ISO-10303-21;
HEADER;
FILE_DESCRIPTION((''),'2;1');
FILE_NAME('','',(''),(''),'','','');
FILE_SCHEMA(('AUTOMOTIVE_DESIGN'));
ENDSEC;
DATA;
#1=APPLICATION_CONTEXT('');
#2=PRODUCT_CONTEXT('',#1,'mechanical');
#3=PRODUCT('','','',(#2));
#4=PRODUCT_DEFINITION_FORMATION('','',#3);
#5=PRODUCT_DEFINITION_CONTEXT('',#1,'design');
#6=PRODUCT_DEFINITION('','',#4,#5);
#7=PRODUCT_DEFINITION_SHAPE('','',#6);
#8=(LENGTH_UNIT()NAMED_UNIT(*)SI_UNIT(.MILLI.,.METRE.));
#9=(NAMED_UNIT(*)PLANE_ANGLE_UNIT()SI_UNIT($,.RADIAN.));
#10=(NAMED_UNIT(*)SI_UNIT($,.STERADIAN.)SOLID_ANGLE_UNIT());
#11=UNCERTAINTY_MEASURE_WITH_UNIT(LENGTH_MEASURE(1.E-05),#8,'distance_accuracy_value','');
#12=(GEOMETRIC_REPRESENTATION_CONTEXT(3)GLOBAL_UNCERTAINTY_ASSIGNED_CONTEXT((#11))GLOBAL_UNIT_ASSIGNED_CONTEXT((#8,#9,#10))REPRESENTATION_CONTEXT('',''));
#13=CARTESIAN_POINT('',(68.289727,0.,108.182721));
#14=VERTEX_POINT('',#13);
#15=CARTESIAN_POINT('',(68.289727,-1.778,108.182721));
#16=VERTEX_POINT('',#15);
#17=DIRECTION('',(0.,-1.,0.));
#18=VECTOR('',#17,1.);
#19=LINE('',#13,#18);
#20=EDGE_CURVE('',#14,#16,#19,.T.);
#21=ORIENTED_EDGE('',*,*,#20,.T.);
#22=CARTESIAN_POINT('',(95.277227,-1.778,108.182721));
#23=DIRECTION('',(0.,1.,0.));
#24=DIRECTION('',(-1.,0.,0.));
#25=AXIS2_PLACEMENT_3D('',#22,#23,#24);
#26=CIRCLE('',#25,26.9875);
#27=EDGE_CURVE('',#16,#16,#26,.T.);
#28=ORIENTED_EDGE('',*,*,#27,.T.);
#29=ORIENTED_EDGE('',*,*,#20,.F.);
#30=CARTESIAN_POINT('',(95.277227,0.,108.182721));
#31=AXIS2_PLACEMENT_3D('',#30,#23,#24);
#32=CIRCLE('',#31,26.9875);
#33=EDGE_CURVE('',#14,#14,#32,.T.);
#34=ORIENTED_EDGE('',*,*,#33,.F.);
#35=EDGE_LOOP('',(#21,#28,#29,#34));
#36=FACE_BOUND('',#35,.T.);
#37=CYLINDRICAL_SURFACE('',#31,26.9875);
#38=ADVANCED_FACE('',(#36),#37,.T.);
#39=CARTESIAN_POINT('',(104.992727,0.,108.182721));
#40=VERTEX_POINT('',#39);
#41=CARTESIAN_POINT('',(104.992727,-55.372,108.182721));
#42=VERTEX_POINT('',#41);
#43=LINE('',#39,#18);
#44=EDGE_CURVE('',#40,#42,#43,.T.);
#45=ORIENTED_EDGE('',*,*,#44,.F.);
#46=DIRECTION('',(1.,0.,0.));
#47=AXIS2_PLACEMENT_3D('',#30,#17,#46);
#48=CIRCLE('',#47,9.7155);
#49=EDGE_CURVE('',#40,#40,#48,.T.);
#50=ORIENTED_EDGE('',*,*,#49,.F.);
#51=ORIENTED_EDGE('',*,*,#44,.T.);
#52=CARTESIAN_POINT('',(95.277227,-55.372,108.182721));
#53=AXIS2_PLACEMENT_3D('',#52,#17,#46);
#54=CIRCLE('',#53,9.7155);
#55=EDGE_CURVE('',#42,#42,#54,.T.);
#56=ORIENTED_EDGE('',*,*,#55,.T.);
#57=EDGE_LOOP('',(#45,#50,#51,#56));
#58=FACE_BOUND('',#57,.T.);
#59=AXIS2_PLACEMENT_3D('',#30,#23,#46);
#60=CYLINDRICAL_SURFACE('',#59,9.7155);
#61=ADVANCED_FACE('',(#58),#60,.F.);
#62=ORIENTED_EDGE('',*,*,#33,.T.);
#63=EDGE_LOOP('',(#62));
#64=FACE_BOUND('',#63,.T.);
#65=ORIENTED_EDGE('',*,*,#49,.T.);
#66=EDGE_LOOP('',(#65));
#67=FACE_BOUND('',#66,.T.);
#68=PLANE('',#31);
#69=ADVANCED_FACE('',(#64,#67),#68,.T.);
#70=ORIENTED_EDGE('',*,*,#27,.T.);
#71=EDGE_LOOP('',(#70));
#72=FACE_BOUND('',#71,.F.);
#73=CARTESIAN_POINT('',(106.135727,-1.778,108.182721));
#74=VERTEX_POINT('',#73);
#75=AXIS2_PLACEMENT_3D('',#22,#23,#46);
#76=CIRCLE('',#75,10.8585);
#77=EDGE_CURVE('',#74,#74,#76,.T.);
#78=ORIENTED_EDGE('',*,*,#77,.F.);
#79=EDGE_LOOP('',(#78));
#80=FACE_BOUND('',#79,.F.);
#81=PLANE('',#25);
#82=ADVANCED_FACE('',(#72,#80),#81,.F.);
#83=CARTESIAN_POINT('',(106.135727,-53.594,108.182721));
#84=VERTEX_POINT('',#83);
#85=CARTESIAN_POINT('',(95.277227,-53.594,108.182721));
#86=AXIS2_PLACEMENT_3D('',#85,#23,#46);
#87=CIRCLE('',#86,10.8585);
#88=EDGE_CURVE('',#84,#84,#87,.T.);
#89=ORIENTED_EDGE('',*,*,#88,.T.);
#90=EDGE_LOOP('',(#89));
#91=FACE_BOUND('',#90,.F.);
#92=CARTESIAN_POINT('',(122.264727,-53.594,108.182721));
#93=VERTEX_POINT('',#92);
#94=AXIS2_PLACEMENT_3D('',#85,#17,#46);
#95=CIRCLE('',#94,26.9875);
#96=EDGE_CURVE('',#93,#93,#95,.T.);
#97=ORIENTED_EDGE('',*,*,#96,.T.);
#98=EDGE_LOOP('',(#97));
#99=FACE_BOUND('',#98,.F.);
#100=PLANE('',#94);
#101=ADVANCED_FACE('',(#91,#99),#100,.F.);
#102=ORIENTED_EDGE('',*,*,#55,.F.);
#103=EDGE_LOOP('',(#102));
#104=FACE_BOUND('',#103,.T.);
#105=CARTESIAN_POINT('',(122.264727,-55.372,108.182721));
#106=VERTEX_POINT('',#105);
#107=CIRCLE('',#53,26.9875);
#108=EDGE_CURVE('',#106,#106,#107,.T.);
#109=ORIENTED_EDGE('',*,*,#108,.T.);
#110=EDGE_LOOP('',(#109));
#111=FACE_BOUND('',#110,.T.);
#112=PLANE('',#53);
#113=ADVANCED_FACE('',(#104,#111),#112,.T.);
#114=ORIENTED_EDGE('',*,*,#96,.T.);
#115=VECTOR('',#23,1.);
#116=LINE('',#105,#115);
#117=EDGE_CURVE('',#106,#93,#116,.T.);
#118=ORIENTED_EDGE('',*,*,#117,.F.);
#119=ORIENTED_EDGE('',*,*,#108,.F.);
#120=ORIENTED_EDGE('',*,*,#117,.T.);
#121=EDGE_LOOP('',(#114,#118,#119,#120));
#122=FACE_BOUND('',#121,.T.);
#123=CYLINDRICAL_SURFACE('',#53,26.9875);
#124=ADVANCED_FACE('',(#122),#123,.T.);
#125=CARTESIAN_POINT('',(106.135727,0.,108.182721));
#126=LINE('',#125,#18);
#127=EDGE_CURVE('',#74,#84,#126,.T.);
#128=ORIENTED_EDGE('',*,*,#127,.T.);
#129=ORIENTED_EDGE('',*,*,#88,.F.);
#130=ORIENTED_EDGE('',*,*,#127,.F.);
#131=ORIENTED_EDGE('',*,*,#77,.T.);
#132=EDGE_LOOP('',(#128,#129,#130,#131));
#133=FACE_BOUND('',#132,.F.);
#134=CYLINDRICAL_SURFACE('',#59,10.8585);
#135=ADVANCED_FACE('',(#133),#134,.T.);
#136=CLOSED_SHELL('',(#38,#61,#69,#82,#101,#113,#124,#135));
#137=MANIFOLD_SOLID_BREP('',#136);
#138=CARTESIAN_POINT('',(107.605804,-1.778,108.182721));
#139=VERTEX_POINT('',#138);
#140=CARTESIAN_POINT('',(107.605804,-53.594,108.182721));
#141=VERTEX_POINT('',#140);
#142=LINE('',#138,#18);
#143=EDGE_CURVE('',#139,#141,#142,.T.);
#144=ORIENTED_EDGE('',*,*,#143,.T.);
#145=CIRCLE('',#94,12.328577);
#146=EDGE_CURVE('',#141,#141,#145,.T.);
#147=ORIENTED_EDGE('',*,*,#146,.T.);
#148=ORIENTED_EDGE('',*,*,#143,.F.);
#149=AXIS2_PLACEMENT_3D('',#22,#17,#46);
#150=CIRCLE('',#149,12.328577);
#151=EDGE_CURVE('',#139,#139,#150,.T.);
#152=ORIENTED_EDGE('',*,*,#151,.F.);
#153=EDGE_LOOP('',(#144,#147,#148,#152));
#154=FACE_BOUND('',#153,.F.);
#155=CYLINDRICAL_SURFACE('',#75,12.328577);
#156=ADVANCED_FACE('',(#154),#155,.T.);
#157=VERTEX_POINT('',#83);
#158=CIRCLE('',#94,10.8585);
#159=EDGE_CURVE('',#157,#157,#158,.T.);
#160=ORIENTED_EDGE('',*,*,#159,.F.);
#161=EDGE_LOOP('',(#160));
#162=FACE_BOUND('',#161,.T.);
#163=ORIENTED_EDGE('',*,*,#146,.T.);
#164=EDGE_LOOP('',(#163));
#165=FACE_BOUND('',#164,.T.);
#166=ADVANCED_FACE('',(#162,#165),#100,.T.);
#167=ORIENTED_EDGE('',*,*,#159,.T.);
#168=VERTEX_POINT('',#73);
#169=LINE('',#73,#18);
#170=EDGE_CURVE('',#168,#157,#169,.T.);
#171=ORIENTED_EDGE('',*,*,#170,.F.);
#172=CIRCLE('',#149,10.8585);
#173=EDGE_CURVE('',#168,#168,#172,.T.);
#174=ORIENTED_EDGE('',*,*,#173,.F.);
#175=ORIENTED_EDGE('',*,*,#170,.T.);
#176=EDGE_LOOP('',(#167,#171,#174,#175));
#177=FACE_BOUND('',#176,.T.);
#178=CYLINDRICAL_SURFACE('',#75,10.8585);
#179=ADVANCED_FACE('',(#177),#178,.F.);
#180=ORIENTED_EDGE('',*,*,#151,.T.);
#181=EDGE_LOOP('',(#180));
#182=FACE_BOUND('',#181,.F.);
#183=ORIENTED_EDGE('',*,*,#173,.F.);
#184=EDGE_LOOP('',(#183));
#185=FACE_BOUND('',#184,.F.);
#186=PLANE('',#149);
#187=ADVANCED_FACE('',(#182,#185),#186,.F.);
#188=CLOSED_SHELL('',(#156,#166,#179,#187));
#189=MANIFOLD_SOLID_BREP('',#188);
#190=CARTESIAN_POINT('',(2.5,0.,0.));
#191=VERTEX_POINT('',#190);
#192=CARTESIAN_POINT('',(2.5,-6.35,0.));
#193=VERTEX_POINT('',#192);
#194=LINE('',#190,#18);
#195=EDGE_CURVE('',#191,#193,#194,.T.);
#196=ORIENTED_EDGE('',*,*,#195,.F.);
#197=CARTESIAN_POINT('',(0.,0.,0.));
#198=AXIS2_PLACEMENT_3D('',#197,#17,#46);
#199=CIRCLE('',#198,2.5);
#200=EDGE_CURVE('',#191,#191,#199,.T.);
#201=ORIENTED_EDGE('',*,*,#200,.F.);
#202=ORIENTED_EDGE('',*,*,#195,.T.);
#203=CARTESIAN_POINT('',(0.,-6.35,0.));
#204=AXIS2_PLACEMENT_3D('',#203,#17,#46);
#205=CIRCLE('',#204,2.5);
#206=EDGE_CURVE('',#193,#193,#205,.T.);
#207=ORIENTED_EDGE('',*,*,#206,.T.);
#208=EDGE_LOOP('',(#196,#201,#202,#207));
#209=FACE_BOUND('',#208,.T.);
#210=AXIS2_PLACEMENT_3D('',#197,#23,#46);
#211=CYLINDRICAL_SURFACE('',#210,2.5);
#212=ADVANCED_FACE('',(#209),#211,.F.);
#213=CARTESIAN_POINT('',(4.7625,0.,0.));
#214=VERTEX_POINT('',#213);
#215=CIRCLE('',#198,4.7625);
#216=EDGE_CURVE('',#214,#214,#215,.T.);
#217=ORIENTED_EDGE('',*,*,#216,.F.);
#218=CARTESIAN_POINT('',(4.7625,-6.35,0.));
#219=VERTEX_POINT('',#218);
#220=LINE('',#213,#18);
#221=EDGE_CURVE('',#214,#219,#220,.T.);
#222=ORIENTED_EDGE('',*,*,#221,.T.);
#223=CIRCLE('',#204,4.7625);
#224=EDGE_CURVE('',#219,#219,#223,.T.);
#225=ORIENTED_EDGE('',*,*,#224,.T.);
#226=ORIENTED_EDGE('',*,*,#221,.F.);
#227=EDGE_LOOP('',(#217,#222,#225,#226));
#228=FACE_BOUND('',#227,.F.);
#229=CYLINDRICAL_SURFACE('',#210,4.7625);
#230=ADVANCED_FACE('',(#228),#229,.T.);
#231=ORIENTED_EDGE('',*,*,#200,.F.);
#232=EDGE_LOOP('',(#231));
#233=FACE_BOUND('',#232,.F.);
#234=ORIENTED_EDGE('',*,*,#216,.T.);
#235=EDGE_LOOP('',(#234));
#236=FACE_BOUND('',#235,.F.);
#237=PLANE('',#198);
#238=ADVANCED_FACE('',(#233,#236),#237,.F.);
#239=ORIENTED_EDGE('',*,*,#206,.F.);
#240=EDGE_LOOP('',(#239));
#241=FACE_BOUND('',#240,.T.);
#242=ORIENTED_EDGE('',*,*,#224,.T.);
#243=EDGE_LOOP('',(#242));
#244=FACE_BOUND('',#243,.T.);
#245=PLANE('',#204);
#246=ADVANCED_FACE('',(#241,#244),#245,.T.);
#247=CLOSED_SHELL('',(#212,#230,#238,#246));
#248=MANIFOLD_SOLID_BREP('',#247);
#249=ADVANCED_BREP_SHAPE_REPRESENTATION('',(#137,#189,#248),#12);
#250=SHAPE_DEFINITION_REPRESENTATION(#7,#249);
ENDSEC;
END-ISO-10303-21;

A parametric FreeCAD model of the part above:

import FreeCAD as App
import Part
import Sketcher

V = App.Vector
Q = App.Units.Quantity

doc = App.newDocument("Part")
params = doc.addObject("Spreadsheet::Sheet", "Params")
for row, (alias, value) in enumerate([
    ("sketch1_diameter", "0.375 in"),
    ("pad1_length", "0.25 in"),
    ("sketch2_diameter", "0.855 in"),
    ("sketch2_diameter2", "0.765 in"),
    ("pad2_length", "2.18 in"),
    ("sketch3_diameter", "2.125 in"),
    ("sketch3_diameter2", "0.765 in"),
    ("pad3_length", "0.07 in"),
    ("sketch4_diameter", "2.125 in"),
    ("sketch4_diameter2", "0.765 in"),
    ("pad4_length", "0.07 in"),
    ("sketch5_diameter", "0.855 in"),
    ("pad5_length", "2.04 in"),
], start=1):
    params.set(f"A{row}", alias)
    params.set(f"B{row}", "=" + value)
    params.setAlias(f"B{row}", alias)

body = doc.addObject("PartDesign::Body", "Body")

# Sketch on XZ plane
sketch1 = body.newObject("Sketcher::SketchObject", "Sketch")
sketch1.AttachmentSupport = (doc.getObject("XZ_Plane"), [""])
sketch1.MapMode = "FlatFace"
sketch1.addGeometry([
    Part.Circle(V(0, 0, 0), V(0, 0, 1), 4.8),
    Part.Circle(V(0, 0, 0), V(0, 0, 1), 2.5),
], False)
sketch1.addConstraint([
    Sketcher.Constraint("Coincident", 0, 3, -1, 1),
    Sketcher.Constraint("Coincident", 1, 3, -1, 1),
    Sketcher.Constraint("Diameter", 0, Q("0.375 in")),
    Sketcher.Constraint("Diameter", 1, Q("5 mm")),
])
sketch1.setExpression("Constraints[2]", "Params.sketch1_diameter")
pad1 = body.newObject("PartDesign::Pad", "Pad")
pad1.Profile = sketch1
pad1.setExpression("Length", "Params.pad1_length")
body2 = doc.addObject("PartDesign::Body", "Body001")

# Sketch on XZ plane
sketch2 = body2.newObject("Sketcher::SketchObject", "Sketch001")
sketch2.AttachmentSupport = (doc.getObject("XZ_Plane001"), [""])
sketch2.MapMode = "FlatFace"
sketch2.addGeometry([
    Part.Circle(V(95, 108, 0), V(0, 0, 1), 11),
    Part.Circle(V(95, 108, 0), V(0, 0, 1), 10),
], False)
sketch2.addConstraint([
    Sketcher.Constraint("Coincident", 1, 3, 0, 3),
    Sketcher.Constraint("Diameter", 0, Q("0.855 in")),
    Sketcher.Constraint("Diameter", 1, Q("0.765 in")),
    Sketcher.Constraint("DistanceY", -1, 1, 0, 3, Q("108.182721 mm")),
    Sketcher.Constraint("DistanceX", -1, 1, 0, 3, Q("95.277227 mm")),
])
sketch2.setExpression("Constraints[1]", "Params.sketch2_diameter")
sketch2.setExpression("Constraints[2]", "Params.sketch2_diameter2")
pad2 = body2.newObject("PartDesign::Pad", "Pad001")
pad2.Profile = sketch2
pad2.setExpression("Length", "Params.pad2_length")

# Sketch on XZ plane
sketch3 = body2.newObject("Sketcher::SketchObject", "Sketch002")
sketch3.AttachmentSupport = (doc.getObject("XZ_Plane001"), [""])
sketch3.MapMode = "FlatFace"
sketch3.AttachmentOffset = App.Placement(V(0, 0, 2.18 * 25.4), App.Rotation())
sketch3.addGeometry([
    Part.Circle(V(95, 108, 0), V(0, 0, 1), 27),
    Part.Circle(V(95, 108, 0), V(0, 0, 1), 10),
], False)
sketch3.addConstraint([
    Sketcher.Constraint("Coincident", 1, 3, 0, 3),
    Sketcher.Constraint("Diameter", 0, Q("2.125 in")),
    Sketcher.Constraint("Diameter", 1, Q("0.765 in")),
    Sketcher.Constraint("DistanceY", -1, 1, 0, 3, Q("108.182721 mm")),
    Sketcher.Constraint("DistanceX", -1, 1, 0, 3, Q("95.277227 mm")),
])
sketch3.setExpression("Constraints[1]", "Params.sketch3_diameter")
sketch3.setExpression("Constraints[2]", "Params.sketch3_diameter2")
pad3 = body2.newObject("PartDesign::Pad", "Pad002")
pad3.Profile = sketch3
pad3.setExpression("Length", "Params.pad3_length")
pad3.Reversed = True

# Sketch on XZ plane
sketch4 = body2.newObject("Sketcher::SketchObject", "Sketch003")
sketch4.AttachmentSupport = (doc.getObject("XZ_Plane001"), [""])
sketch4.MapMode = "FlatFace"
sketch4.addGeometry([
    Part.Circle(V(95, 108, 0), V(0, 0, 1), 27),
    Part.Circle(V(95, 108, 0), V(0, 0, 1), 10),
], False)
sketch4.addConstraint([
    Sketcher.Constraint("Coincident", 1, 3, 0, 3),
    Sketcher.Constraint("Diameter", 0, Q("2.125 in")),
    Sketcher.Constraint("Diameter", 1, Q("0.765 in")),
    Sketcher.Constraint("DistanceY", -1, 1, 0, 3, Q("108.182721 mm")),
    Sketcher.Constraint("DistanceX", -1, 1, 0, 3, Q("95.277227 mm")),
])
sketch4.setExpression("Constraints[1]", "Params.sketch4_diameter")
sketch4.setExpression("Constraints[2]", "Params.sketch4_diameter2")
pad4 = body2.newObject("PartDesign::Pad", "Pad003")
pad4.Profile = sketch4
pad4.setExpression("Length", "Params.pad4_length")
body3 = doc.addObject("PartDesign::Body", "Body002")

# Sketch on XZ plane
sketch5 = body3.newObject("Sketcher::SketchObject", "Sketch004")
sketch5.AttachmentSupport = (doc.getObject("XZ_Plane002"), [""])
sketch5.MapMode = "FlatFace"
sketch5.AttachmentOffset = App.Placement(V(0, 0, 0.07 * 25.4), App.Rotation())
sketch5.addGeometry([
    Part.Circle(V(95, 108, 0), V(0, 0, 1), 12),
    Part.Circle(V(95, 108, 0), V(0, 0, 1), 11),
], False)
sketch5.addConstraint([
    Sketcher.Constraint("Coincident", 1, 3, 0, 3),
    Sketcher.Constraint("Diameter", 1, Q("0.855 in")),
    Sketcher.Constraint("Diameter", 0, Q("24.657154 mm")),
    Sketcher.Constraint("DistanceY", -1, 1, 0, 3, Q("108.182721 mm")),
    Sketcher.Constraint("DistanceX", -1, 1, 0, 3, Q("95.277227 mm")),
])
sketch5.setExpression("Constraints[1]", "Params.sketch5_diameter")
pad5 = body3.newObject("PartDesign::Pad", "Pad004")
pad5.Profile = sketch5
pad5.setExpression("Length", "Params.pad5_length")

doc.recompute()
